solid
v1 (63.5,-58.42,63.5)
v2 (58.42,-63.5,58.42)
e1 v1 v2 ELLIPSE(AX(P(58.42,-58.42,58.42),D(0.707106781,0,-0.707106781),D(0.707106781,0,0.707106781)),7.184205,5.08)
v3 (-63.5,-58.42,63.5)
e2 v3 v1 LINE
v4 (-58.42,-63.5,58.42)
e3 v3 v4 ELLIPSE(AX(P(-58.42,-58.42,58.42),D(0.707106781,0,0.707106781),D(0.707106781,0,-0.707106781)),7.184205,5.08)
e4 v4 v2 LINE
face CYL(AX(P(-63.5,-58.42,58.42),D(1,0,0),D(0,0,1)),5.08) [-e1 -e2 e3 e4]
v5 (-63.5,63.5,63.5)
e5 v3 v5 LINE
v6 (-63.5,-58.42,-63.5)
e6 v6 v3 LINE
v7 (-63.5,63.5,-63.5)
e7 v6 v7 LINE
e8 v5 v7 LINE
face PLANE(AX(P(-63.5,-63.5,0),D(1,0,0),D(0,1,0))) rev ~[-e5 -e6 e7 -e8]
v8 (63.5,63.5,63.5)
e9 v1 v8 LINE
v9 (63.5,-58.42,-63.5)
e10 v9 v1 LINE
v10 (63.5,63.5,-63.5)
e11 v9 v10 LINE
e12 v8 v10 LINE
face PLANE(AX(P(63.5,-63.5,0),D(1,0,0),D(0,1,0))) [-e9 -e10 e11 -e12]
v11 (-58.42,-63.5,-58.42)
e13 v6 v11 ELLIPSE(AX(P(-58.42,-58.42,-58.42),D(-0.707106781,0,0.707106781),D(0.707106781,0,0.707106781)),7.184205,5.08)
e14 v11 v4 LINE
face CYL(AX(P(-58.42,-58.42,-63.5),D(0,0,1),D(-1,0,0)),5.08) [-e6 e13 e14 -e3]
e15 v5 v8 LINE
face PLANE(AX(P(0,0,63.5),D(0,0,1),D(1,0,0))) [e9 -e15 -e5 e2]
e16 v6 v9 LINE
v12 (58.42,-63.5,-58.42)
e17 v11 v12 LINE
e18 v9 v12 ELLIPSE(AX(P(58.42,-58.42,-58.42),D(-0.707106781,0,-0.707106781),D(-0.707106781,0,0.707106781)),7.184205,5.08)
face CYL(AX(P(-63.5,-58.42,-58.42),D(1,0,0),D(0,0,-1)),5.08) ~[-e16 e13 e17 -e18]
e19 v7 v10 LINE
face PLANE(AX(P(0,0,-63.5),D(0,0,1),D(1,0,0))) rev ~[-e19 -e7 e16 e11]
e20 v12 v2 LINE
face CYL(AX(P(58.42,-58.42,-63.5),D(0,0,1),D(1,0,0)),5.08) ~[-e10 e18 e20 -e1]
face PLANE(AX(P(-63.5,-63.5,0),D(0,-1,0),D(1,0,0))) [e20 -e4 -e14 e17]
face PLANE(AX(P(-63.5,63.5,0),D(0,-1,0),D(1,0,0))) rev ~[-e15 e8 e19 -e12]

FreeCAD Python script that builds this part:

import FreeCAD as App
import Part
import Sketcher
from FreeCAD import Vector
Q = App.Units.Quantity


def edges_at(feature, points):
    """Names of the edges that pass closest to the given points."""
    edges = feature.Shape.Edges
    near = lambda p: min(range(len(edges)), key=lambda i: edges[i].distToShape(Part.Vertex(*p))[0])
    return sorted({f"Edge{near(p) + 1}" for p in points})

doc = App.newDocument("Part")
body = doc.addObject("PartDesign::Body", "Body")

# Sketch on XY plane
sketch1 = body.newObject("Sketcher::SketchObject", "Sketch")
sketch1.AttachmentSupport = (doc.getObject("XY_Plane"), [""])
sketch1.MapMode = "FlatFace"
sketch1.addGeometry(Part.LineSegment(Vector(-64, 64, 0), Vector(-64, -64, 0)), False)
sketch1.addGeometry(Part.LineSegment(Vector(-64, -64, 0), Vector(64, -64, 0)), False)
sketch1.addGeometry(Part.LineSegment(Vector(64, -64, 0), Vector(64, 64, 0)), False)
sketch1.addGeometry(Part.LineSegment(Vector(64, 64, 0), Vector(-64, 64, 0)), False)
sketch1.addConstraint(Sketcher.Constraint("Coincident", 0, 2, 1, 1))
sketch1.addConstraint(Sketcher.Constraint("Coincident", 1, 2, 2, 1))
sketch1.addConstraint(Sketcher.Constraint("Coincident", 2, 2, 3, 1))
sketch1.addConstraint(Sketcher.Constraint("Coincident", 3, 2, 0, 1))
sketch1.addConstraint(Sketcher.Constraint("Vertical", 0))
sketch1.addConstraint(Sketcher.Constraint("Horizontal", 1))
sketch1.addConstraint(Sketcher.Constraint("Vertical", 2))
sketch1.addConstraint(Sketcher.Constraint("Horizontal", 3))
sketch1.addConstraint(Sketcher.Constraint("Symmetric", 0, 2, 2, 2, -1, 1))
sketch1.addConstraint(Sketcher.Constraint("Equal", 3, 0))
sketch1.addConstraint(Sketcher.Constraint("DistanceX", 1, 1, 1, 2, Q("5 in")))
pad1 = body.newObject("PartDesign::Pad", "Pad")
pad1.Profile = sketch1
pad1.Length = Q("5 in")
pad1.Midplane = True
doc.recompute()

fillet = body.newObject("PartDesign::Fillet", "Fillet")
fillet.Base = (pad1, edges_at(pad1, [
    (0, -63.5, 63.5),
    (63.5, -63.5, 0),
    (0, -63.5, -63.5),
    (-63.5, -63.5, 0),
]))
fillet.Radius = Q("0.2 in")

doc.recompute()
